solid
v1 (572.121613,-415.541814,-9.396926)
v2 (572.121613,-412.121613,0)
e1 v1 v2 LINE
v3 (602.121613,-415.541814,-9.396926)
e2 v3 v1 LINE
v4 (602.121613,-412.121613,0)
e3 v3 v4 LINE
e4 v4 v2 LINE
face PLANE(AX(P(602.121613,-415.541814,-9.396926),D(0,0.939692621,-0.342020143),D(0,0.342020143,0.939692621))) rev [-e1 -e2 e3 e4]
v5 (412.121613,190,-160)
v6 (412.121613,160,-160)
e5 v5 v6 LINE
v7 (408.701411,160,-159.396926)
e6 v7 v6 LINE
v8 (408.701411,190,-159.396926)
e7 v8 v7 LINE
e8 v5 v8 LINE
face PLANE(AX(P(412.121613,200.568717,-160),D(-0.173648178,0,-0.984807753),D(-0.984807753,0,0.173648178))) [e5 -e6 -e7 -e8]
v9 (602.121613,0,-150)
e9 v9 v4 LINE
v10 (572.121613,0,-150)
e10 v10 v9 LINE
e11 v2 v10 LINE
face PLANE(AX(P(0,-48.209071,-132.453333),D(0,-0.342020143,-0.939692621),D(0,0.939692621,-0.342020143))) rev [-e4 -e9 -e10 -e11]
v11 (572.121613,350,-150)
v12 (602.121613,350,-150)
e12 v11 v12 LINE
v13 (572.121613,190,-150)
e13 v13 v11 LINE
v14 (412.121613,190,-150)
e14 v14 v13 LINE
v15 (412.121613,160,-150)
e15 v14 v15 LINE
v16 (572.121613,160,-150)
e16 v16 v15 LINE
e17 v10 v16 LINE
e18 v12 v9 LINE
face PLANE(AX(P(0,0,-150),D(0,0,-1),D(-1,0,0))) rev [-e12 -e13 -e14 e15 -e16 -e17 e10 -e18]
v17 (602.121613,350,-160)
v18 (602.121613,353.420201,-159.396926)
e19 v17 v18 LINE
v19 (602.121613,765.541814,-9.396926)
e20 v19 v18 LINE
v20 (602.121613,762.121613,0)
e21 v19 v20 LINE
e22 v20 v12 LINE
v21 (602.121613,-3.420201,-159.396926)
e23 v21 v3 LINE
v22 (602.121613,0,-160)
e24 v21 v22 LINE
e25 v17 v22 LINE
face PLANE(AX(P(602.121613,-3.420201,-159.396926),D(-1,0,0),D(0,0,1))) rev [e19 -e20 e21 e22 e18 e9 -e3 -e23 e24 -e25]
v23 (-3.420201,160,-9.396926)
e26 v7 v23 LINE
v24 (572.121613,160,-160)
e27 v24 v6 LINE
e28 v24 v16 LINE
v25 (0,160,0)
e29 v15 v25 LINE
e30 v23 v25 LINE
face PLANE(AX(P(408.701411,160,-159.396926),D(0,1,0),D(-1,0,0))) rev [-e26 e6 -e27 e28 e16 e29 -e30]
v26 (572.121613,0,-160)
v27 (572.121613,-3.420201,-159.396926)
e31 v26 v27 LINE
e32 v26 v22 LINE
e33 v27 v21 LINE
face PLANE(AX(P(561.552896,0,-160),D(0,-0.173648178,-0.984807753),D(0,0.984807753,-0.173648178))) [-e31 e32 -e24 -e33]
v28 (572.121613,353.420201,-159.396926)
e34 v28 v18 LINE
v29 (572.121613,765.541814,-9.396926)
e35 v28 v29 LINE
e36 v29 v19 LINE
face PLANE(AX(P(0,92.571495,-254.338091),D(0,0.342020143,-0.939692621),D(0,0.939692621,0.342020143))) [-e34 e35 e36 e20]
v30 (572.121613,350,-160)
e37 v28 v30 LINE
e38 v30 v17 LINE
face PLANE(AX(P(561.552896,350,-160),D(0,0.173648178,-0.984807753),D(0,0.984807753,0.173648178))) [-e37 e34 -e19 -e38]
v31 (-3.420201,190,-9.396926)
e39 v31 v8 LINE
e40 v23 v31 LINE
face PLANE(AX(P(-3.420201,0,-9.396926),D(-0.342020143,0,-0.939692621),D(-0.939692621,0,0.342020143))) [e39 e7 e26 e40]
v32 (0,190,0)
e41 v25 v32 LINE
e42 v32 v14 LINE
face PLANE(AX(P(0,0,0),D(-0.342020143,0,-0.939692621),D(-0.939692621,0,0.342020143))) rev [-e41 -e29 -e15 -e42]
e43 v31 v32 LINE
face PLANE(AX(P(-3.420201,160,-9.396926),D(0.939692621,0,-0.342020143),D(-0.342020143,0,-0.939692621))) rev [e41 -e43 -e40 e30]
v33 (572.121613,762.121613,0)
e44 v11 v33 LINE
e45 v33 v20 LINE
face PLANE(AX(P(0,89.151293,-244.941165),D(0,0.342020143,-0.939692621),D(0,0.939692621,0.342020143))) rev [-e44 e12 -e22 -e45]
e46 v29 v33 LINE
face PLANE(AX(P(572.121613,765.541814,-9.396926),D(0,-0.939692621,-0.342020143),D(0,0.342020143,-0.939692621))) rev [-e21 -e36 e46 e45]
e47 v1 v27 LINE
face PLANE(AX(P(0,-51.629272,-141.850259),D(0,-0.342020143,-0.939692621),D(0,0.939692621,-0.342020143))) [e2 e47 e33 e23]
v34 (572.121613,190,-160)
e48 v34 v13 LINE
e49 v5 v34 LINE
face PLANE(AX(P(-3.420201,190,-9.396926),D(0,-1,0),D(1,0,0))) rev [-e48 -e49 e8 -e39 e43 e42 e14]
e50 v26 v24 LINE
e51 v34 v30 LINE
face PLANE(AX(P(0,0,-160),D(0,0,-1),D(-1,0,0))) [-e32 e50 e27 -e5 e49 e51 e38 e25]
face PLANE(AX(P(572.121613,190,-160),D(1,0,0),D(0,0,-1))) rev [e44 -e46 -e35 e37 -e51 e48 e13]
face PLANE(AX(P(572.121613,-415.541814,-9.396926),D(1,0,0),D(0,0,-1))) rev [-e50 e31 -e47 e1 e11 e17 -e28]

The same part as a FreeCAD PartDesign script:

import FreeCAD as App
import Part
import Sketcher
from FreeCAD import Vector
Q = App.Units.Quantity

doc = App.newDocument("Part")
params = doc.addObject("Spreadsheet::Sheet", "Params")
for row, (alias, value) in enumerate([
    ("sketch1_height", "150 mm"),
    ("pad1_length", "350 mm"),
    ("sketch2_width", "350 mm"),
    ("sketch2_height", "150 mm"),
    ("pad2_length", "350 mm"),
    ("sketch3_height", "150 mm"),
    ("pad3_length", "350 mm"),
    ("sketch4_height", "150 mm"),
    ("pad4_length", "350 mm"),
    ("sketch5_height", "30 mm"),
    ("pocket1_length", "10 mm"),
    ("sketch6_width", "160 mm"),
    ("sketch6_width2", "30 mm"),
    ("pocket2_length", "10 mm"),
    ("sketch7_width", "30 mm"),
    ("pocket3_length", "10 mm"),
    ("sketch8_width", "30 mm"),
    ("pocket4_length", "10 mm"),
    ("sketch9_height", "160 mm"),
    ("pocket5_length", "1000 mm"),
    ("sketch10_height", "160 mm"),
    ("pocket6_length", "1000 mm"),
    ("sketch11_width", "160 mm"),
    ("pocket7_length", "1000 mm"),
    ("sketch12_width", "160 mm"),
    ("pocket8_length", "1000 mm"),
    ("sketch13_width", "160 mm"),
    ("pocket9_length", "1000 mm"),
    ("sketch14_width", "160 mm"),
    ("pocket10_length", "1000 mm"),
    ("sketch15_width", "160 mm"),
    ("sketch15_height", "350 mm"),
    ("pocket11_length", "1000 mm"),
    ("sketch16_width", "160 mm"),
    ("pocket12_length", "1000 mm"),
    ("sketch17_width", "160 mm"),
    ("pocket13_length", "1000 mm"),
    ("sketch18_height", "140 mm"),
    ("pocket14_length", "1000 mm"),
    ("pocket15_length", "1000 mm"),
    ("sketch20_height", "30 mm"),
    ("pad5_length", "10 mm"),
    ("sketch21_width", "160 mm"),
    ("sketch21_width2", "30 mm"),
    ("pad6_length", "10 mm"),
    ("sketch22_width", "30 mm"),
    ("pad7_length", "10 mm"),
    ("sketch23_width", "30 mm"),
    ("pad8_length", "10 mm"),
    ("sketch24_height", "10 mm"),
    ("pad9_length", "30 mm"),
    ("sketch25_height", "10 mm"),
    ("pad10_length", "30 mm"),
    ("sketch26_height", "10 mm"),
    ("pad11_length", "30 mm"),
], start=1):
    params.set(f"A{row}", alias)
    params.set(f"B{row}", "=" + value)
    params.setAlias(f"B{row}", alias)

body = doc.addObject("PartDesign::Body", "Body")

sketch1 = body.newObject("Sketcher::SketchObject", "Sketch")
sketch1.AttachmentSupport = (doc.getObject("XZ_Plane"), [""])
sketch1.MapMode = "FlatFace"
sketch1.addGeometry([
    Part.LineSegment(Vector(0, 0, 0), Vector(412, 0, 0)),
    Part.LineSegment(Vector(412, 0, 0), Vector(412, -150, 0)),
    Part.LineSegment(Vector(412, -150, 0), Vector(0, 0, 0)),
], False)
sketch1.addConstraint([
    Sketcher.Constraint("Coincident", 0, 2, 1, 1),
    Sketcher.Constraint("Coincident", 1, 2, 2, 1),
    Sketcher.Constraint("Coincident", 2, 2, 0, 1),
    Sketcher.Constraint("Horizontal", 0),
    Sketcher.Constraint("Vertical", 1),
    Sketcher.Constraint("Coincident", 2, 2, -1, 1),
    Sketcher.Constraint("DistanceY", 1, 2, 1, 1, Q("150 mm")),
    Sketcher.Constraint("Angle", 2, Q("160 deg")),
])
sketch1.setExpression("Constraints[6]", "Params.sketch1_height")
pad1 = body.newObject("PartDesign::Pad", "Pad")
pad1.Profile = sketch1
pad1.setExpression("Length", "Params.pad1_length")
pad1.Reversed = True

sketch2 = body.newObject("Sketcher::SketchObject", "Sketch001")
sketch2.AttachmentSupport = (doc.getObject("YZ_Plane"), [""])
sketch2.MapMode = "FlatFace"
sketch2.AttachmentOffset = App.Placement(Vector(0, 0, 412.121613), App.Rotation())
sketch2.addGeometry([
    Part.LineSegment(Vector(350, 0, 0), Vector(0, 0, 0)),
    Part.LineSegment(Vector(0, 0, 0), Vector(0, -150, 0)),
    Part.LineSegment(Vector(0, -150, 0), Vector(350, -150, 0)),
    Part.LineSegment(Vector(350, -150, 0), Vector(350, 0, 0)),
], False)
sketch2.addConstraint([
    Sketcher.Constraint("Coincident", 0, 2, 1, 1),
    Sketcher.Constraint("Coincident", 1, 2, 2, 1),
    Sketcher.Constraint("Coincident", 2, 2, 3, 1),
    Sketcher.Constraint("Coincident", 3, 2, 0, 1),
    Sketcher.Constraint("Horizontal", 0),
    Sketcher.Constraint("Vertical", 1),
    Sketcher.Constraint("Horizontal", 2),
    Sketcher.Constraint("Vertical", 3),
    Sketcher.Constraint("Coincident", 0, 2, -1, 1),
    Sketcher.Constraint("DistanceX", 0, 2, 0, 1, Q("350 mm")),
    Sketcher.Constraint("DistanceY", 1, 2, 1, 1, Q("150 mm")),
])
sketch2.setExpression("Constraints[9]", "Params.sketch2_width")
sketch2.setExpression("Constraints[10]", "Params.sketch2_height")
pad2 = body.newObject("PartDesign::Pad", "Pad001")
pad2.Profile = sketch2
pad2.setExpression("Length", "Params.pad2_length")

sketch3 = body.newObject("Sketcher::SketchObject", "Sketch002")
sketch3.AttachmentSupport = (doc.getObject("YZ_Plane"), [""])
sketch3.MapMode = "FlatFace"
sketch3.AttachmentOffset = App.Placement(Vector(0, 0, 762.121613), App.Rotation())
sketch3.addGeometry([
    Part.LineSegment(Vector(350, -150, 0), Vector(762, 0, 0)),
    Part.LineSegment(Vector(762, 0, 0), Vector(350, 0, 0)),
    Part.LineSegment(Vector(350, 0, 0), Vector(350, -150, 0)),
], False)
sketch3.addConstraint([
    Sketcher.Constraint("Coincident", 0, 2, 1, 1),
    Sketcher.Constraint("Coincident", 1, 2, 2, 1),
    Sketcher.Constraint("Coincident", 2, 2, 0, 1),
    Sketcher.Constraint("Horizontal", 1),
    Sketcher.Constraint("Vertical", 2),
    Sketcher.Constraint("PointOnObject", 0, 2, -1),
    Sketcher.Constraint("DistanceY", 2, 2, 2, 1, Q("150 mm")),
    Sketcher.Constraint("Angle", 0, Q("20 deg")),
    Sketcher.Constraint("DistanceX", -1, 1, 1, 2, Q("350 mm")),
])
sketch3.setExpression("Constraints[6]", "Params.sketch3_height")
pad3 = body.newObject("PartDesign::Pad", "Pad002")
pad3.Profile = sketch3
pad3.setExpression("Length", "Params.pad3_length")
pad3.Reversed = True

sketch4 = body.newObject("Sketcher::SketchObject", "Sketch003")
sketch4.AttachmentSupport = (doc.getObject("YZ_Plane"), [""])
sketch4.MapMode = "FlatFace"
sketch4.AttachmentOffset = App.Placement(Vector(0, 0, 762.121613), App.Rotation())
sketch4.addGeometry([
    Part.LineSegment(Vector(0, 0, 0), Vector(-412, 0, 0)),
    Part.LineSegment(Vector(-412, 0, 0), Vector(0, -150, 0)),
    Part.LineSegment(Vector(0, -150, 0), Vector(0, 0, 0)),
], False)
sketch4.addConstraint([
    Sketcher.Constraint("Coincident", 0, 2, 1, 1),
    Sketcher.Constraint("Coincident", 1, 2, 2, 1),
    Sketcher.Constraint("Coincident", 2, 2, 0, 1),
    Sketcher.Constraint("Horizontal", 0),
    Sketcher.Constraint("Vertical", 2),
    Sketcher.Constraint("Coincident", 2, 2, -1, 1),
    Sketcher.Constraint("DistanceY", 2, 1, 2, 2, Q("150 mm")),
    Sketcher.Constraint("Angle", 1, Q("-20 deg")),
])
sketch4.setExpression("Constraints[6]", "Params.sketch4_height")
pad4 = body.newObject("PartDesign::Pad", "Pad003")
pad4.Profile = sketch4
pad4.setExpression("Length", "Params.pad4_length")
pad4.Reversed = True

sketch5 = body.newObject("Sketcher::SketchObject", "Sketch004")
sketch5.Placement = App.Placement(Vector(0, 0, 0), App.Rotation(Vector(-0.939692621, 0, 0.342020143), Vector(0, 1, 0), Vector(-0.342020143, 0, -0.939692621), "ZXY"))
sketch5.addGeometry([
    Part.LineSegment(Vector(-439, 190, 0), Vector(-439, 160, 0)),
    Part.LineSegment(Vector(-439, 160, 0), Vector(0, 160, 0)),
    Part.LineSegment(Vector(0, 160, 0), Vector(0, 190, 0)),
    Part.LineSegment(Vector(0, 190, 0), Vector(-439, 190, 0)),
], False)
sketch5.addConstraint([
    Sketcher.Constraint("Coincident", 0, 2, 1, 1),
    Sketcher.Constraint("Coincident", 1, 2, 2, 1),
    Sketcher.Constraint("Coincident", 2, 2, 3, 1),
    Sketcher.Constraint("Coincident", 3, 2, 0, 1),
    Sketcher.Constraint("Vertical", 0),
    Sketcher.Constraint("Horizontal", 1),
    Sketcher.Constraint("Vertical", 2),
    Sketcher.Constraint("Horizontal", 3),
    Sketcher.Constraint("PointOnObject", 1, 2, -2),
    Sketcher.Constraint("DistanceY", 0, 2, 0, 1, Q("30 mm")),
    Sketcher.Constraint("DistanceY", -1, 1, 0, 2, Q("160 mm")),
    Sketcher.Constraint("DistanceX", 1, 1, 1, 2, Q("438.57066 mm")),
])
sketch5.setExpression("Constraints[9]", "Params.sketch5_height")
pocket1 = body.newObject("PartDesign::Pocket", "Pocket")
pocket1.Profile = sketch5
pocket1.setExpression("Length", "Params.pocket1_length")

sketch6 = body.newObject("Sketcher::SketchObject", "Sketch005")
sketch6.AttachmentSupport = (doc.getObject("XY_Plane"), [""])
sketch6.MapMode = "FlatFace"
sketch6.AttachmentOffset = App.Placement(Vector(0, 0, -150), App.Rotation())
sketch6.addGeometry([
    Part.LineSegment(Vector(412, 190, 0), Vector(572, 190, 0)),
    Part.LineSegment(Vector(572, 190, 0), Vector(572, 350, 0)),
    Part.LineSegment(Vector(572, 350, 0), Vector(602, 350, 0)),
    Part.LineSegment(Vector(602, 350, 0), Vector(602, 0, 0)),
    Part.LineSegment(Vector(602, 0, 0), Vector(572, 0, 0)),
    Part.LineSegment(Vector(572, 0, 0), Vector(572, 160, 0)),
    Part.LineSegment(Vector(572, 160, 0), Vector(412, 160, 0)),
    Part.LineSegment(Vector(412, 160, 0), Vector(412, 190, 0)),
], False)
sketch6.addConstraint([
    Sketcher.Constraint("Coincident", 0, 2, 1, 1),
    Sketcher.Constraint("Coincident", 1, 2, 2, 1),
    Sketcher.Constraint("Coincident", 2, 2, 3, 1),
    Sketcher.Constraint("Coincident", 3, 2, 4, 1),
    Sketcher.Constraint("Coincident", 4, 2, 5, 1),
    Sketcher.Constraint("Coincident", 5, 2, 6, 1),
    Sketcher.Constraint("Coincident", 6, 2, 7, 1),
    Sketcher.Constraint("Coincident", 7, 2, 0, 1),
    Sketcher.Constraint("Horizontal", 0),
    Sketcher.Constraint("Vertical", 1),
    Sketcher.Constraint("Horizontal", 2),
    Sketcher.Constraint("Vertical", 3),
    Sketcher.Constraint("Horizontal", 4),
    Sketcher.Constraint("Vertical", 5),
    Sketcher.Constraint("Horizontal", 6),
    Sketcher.Constraint("Vertical", 7),
    Sketcher.Constraint("PointOnObject", 3, 2, -1),
    Sketcher.Constraint("Vertical", 1, 2, 4, 2),
    Sketcher.Constraint("Equal", 6, 1),
    Sketcher.Constraint("Equal", 1, 5),
    Sketcher.Constraint("Equal", 4, 7),
    Sketcher.Constraint("DistanceX", 0, 1, 0, 2, Q("160 mm")),
    Sketcher.Constraint("DistanceX", 2, 1, 2, 2, Q("30 mm")),
    Sketcher.Constraint("DistanceX", -1, 1, 0, 2, Q("572.121613 mm")),
])
sketch6.setExpression("Constraints[21]", "Params.sketch6_width")
sketch6.setExpression("Constraints[22]", "Params.sketch6_width2")
pocket2 = body.newObject("PartDesign::Pocket", "Pocket001")
pocket2.Profile = sketch6
pocket2.setExpression("Length", "Params.pocket2_length")
pocket2.Reversed = True

sketch7 = body.newObject("Sketcher::SketchObject", "Sketch006")
sketch7.Placement = App.Placement(Vector(0, -48.209071, -132.453333), App.Rotation(Vector(-1, 0, 0), Vector(0, 0.939692621, -0.342020143), Vector(0, -0.342020143, -0.939692621), "ZXY"))
sketch7.addGeometry([
    Part.LineSegment(Vector(-602, 51, 0), Vector(-602, -387, 0)),
    Part.LineSegment(Vector(-602, -387, 0), Vector(-572, -387, 0)),
    Part.LineSegment(Vector(-572, -387, 0), Vector(-572, 51, 0)),
    Part.LineSegment(Vector(-572, 51, 0), Vector(-602, 51, 0)),
], False)
sketch7.addConstraint([
    Sketcher.Constraint("Coincident", 0, 2, 1, 1),
    Sketcher.Constraint("Coincident", 1, 2, 2, 1),
    Sketcher.Constraint("Coincident", 2, 2, 3, 1),
    Sketcher.Constraint("Coincident", 3, 2, 0, 1),
    Sketcher.Constraint("Vertical", 0),
    Sketcher.Constraint("Horizontal", 1),
    Sketcher.Constraint("Vertical", 2),
    Sketcher.Constraint("Horizontal", 3),
    Sketcher.Constraint("DistanceX", 1, 1, 1, 2, Q("30 mm")),
    Sketcher.Constraint("DistanceY", 0, 2, 0, 1, Q("438.57066 mm")),
    Sketcher.Constraint("DistanceY", 0, 2, -1, 1, Q("387.267639 mm")),
    Sketcher.Constraint("DistanceX", 0, 2, -1, 1, Q("602.121613 mm")),
])
sketch7.setExpression("Constraints[8]", "Params.sketch7_width")
pocket3 = body.newObject("PartDesign::Pocket", "Pocket002")
pocket3.Profile = sketch7
pocket3.setExpression("Length", "Params.pocket3_length")

sketch8 = body.newObject("Sketcher::SketchObject", "Sketch007")
sketch8.Placement = App.Placement(Vector(0, 89.151293, -244.941165), App.Rotation(Vector(-1, 0, 0), Vector(0, 0.939692621, 0.342020143), Vector(0, 0.342020143, -0.939692621), "ZXY"))
sketch8.addGeometry([
    Part.LineSegment(Vector(-602, 716, 0), Vector(-602, 278, 0)),
    Part.LineSegment(Vector(-602, 278, 0), Vector(-572, 278, 0)),
    Part.LineSegment(Vector(-572, 278, 0), Vector(-572, 716, 0)),
    Part.LineSegment(Vector(-572, 716, 0), Vector(-602, 716, 0)),
], False)
sketch8.addConstraint([
    Sketcher.Constraint("Coincident", 0, 2, 1, 1),
    Sketcher.Constraint("Coincident", 1, 2, 2, 1),
    Sketcher.Constraint("Coincident", 2, 2, 3, 1),
    Sketcher.Constraint("Coincident", 3, 2, 0, 1),
    Sketcher.Constraint("Vertical", 0),
    Sketcher.Constraint("Horizontal", 1),
    Sketcher.Constraint("Vertical", 2),
    Sketcher.Constraint("Horizontal", 3),
    Sketcher.Constraint("DistanceX", 1, 1, 1, 2, Q("30 mm")),
    Sketcher.Constraint("DistanceY", 0, 2, 0, 1, Q("438.57066 mm")),
    Sketcher.Constraint("DistanceX", 0, 2, -1, 1, Q("602.121613 mm")),
    Sketcher.Constraint("DistanceY", -1, 1, 0, 2, Q("277.589396 mm")),
])
sketch8.setExpression("Constraints[8]", "Params.sketch8_width")
pocket4 = body.newObject("PartDesign::Pocket", "Pocket003")
pocket4.Profile = sketch8
pocket4.setExpression("Length", "Params.pocket4_length")

sketch9 = body.newObject("Sketcher::SketchObject", "Sketch008")
sketch9.Placement = App.Placement(Vector(0, 0, 0), App.Rotation(Vector(-0.939692621, 0, 0.342020143), Vector(0, 1, 0), Vector(-0.342020143, 0, -0.939692621), "ZXY"))
sketch9.addGeometry([
    Part.LineSegment(Vector(-439, 160, 0), Vector(-439, 0, 0)),
    Part.LineSegment(Vector(-439, 0, 0), Vector(0, 0, 0)),
    Part.LineSegment(Vector(0, 0, 0), Vector(0, 160, 0)),
    Part.LineSegment(Vector(0, 160, 0), Vector(-439, 160, 0)),
], False)
sketch9.addConstraint([
    Sketcher.Constraint("Coincident", 0, 2, 1, 1),
    Sketcher.Constraint("Coincident", 1, 2, 2, 1),
    Sketcher.Constraint("Coincident", 2, 2, 3, 1),
    Sketcher.Constraint("Coincident", 3, 2, 0, 1),
    Sketcher.Constraint("Vertical", 0),
    Sketcher.Constraint("Horizontal", 1),
    Sketcher.Constraint("Vertical", 2),
    Sketcher.Constraint("Horizontal", 3),
    Sketcher.Constraint("Coincident", 1, 2, -1, 1),
    Sketcher.Constraint("DistanceY", 0, 2, 0, 1, Q("160 mm")),
    Sketcher.Constraint("DistanceX", 1, 1, 1, 2, Q("438.57066 mm")),
])
sketch9.setExpression("Constraints[9]", "Params.sketch9_height")
pocket5 = body.newObject("PartDesign::Pocket", "Pocket004")
pocket5.Profile = sketch9
pocket5.setExpression("Length", "Params.pocket5_length")

sketch10 = body.newObject("Sketcher::SketchObject", "Sketch009")
sketch10.Placement = App.Placement(Vector(0, 0, 0), App.Rotation(Vector(-0.939692621, 0, 0.342020143), Vector(0, 1, 0), Vector(-0.342020143, 0, -0.939692621), "ZXY"))
sketch10.addGeometry([
    Part.LineSegment(Vector(-439, 350, 0), Vector(-439, 190, 0)),
    Part.LineSegment(Vector(-439, 190, 0), Vector(0, 190, 0)),
    Part.LineSegment(Vector(0, 190, 0), Vector(0, 350, 0)),
    Part.LineSegment(Vector(0, 350, 0), Vector(-439, 350, 0)),
], False)
sketch10.addConstraint([
    Sketcher.Constraint("Coincident", 0, 2, 1, 1),
    Sketcher.Constraint("Coincident", 1, 2, 2, 1),
    Sketcher.Constraint("Coincident", 2, 2, 3, 1),
    Sketcher.Constraint("Coincident", 3, 2, 0, 1),
    Sketcher.Constraint("Vertical", 0),
    Sketcher.Constraint("Horizontal", 1),
    Sketcher.Constraint("Vertical", 2),
    Sketcher.Constraint("Horizontal", 3),
    Sketcher.Constraint("PointOnObject", 1, 2, -2),
    Sketcher.Constraint("DistanceY", 0, 2, 0, 1, Q("160 mm")),
    Sketcher.Constraint("DistanceY", -1, 1, 0, 2, Q("190 mm")),
    Sketcher.Constraint("DistanceX", 1, 1, 1, 2, Q("438.57066 mm")),
])
sketch10.setExpression("Constraints[9]", "Params.sketch10_height")
pocket6 = body.newObject("PartDesign::Pocket", "Pocket005")
pocket6.Profile = sketch10
pocket6.setExpression("Length", "Params.pocket6_length")

sketch11 = body.newObject("Sketcher::SketchObject", "Sketch010")
sketch11.AttachmentSupport = (doc.getObject("XY_Plane"), [""])
sketch11.MapMode = "FlatFace"
sketch11.AttachmentOffset = App.Placement(Vector(0, 0, -150), App.Rotation())
sketch11.addGeometry([
    Part.LineSegment(Vector(572, 350, 0), Vector(572, 190, 0)),
    Part.LineSegment(Vector(572, 190, 0), Vector(412, 190, 0)),
    Part.LineSegment(Vector(412, 190, 0), Vector(412, 350, 0)),
    Part.LineSegment(Vector(412, 350, 0), Vector(572, 350, 0)),
], False)
sketch11.addConstraint([
    Sketcher.Constraint("Coincident", 0, 2, 1, 1),
    Sketcher.Constraint("Coincident", 1, 2, 2, 1),
    Sketcher.Constraint("Coincident", 2, 2, 3, 1),
    Sketcher.Constraint("Coincident", 3, 2, 0, 1),
    Sketcher.Constraint("Vertical", 0),
    Sketcher.Constraint("Horizontal", 1),
    Sketcher.Constraint("Vertical", 2),
    Sketcher.Constraint("Horizontal", 3),
    Sketcher.Constraint("Equal", 3, 0),
    Sketcher.Constraint("DistanceX", 1, 2, 1, 1, Q("160 mm")),
    Sketcher.Constraint("DistanceY", -1, 1, 0, 2, Q("190 mm")),
    Sketcher.Constraint("DistanceX", -1, 1, 0, 2, Q("572.121613 mm")),
])
sketch11.setExpression("Constraints[9]", "Params.sketch11_width")
pocket7 = body.newObject("PartDesign::Pocket", "Pocket006")
pocket7.Profile = sketch11
pocket7.setExpression("Length", "Params.pocket7_length")
pocket7.Reversed = True

sketch12 = body.newObject("Sketcher::SketchObject", "Sketch011")
sketch12.AttachmentSupport = (doc.getObject("XY_Plane"), [""])
sketch12.MapMode = "FlatFace"
sketch12.AttachmentOffset = App.Placement(Vector(0, 0, -150), App.Rotation())
sketch12.addGeometry([
    Part.LineSegment(Vector(572, 160, 0), Vector(572, 0, 0)),
    Part.LineSegment(Vector(572, 0, 0), Vector(412, 0, 0)),
    Part.LineSegment(Vector(412, 0, 0), Vector(412, 160, 0)),
    Part.LineSegment(Vector(412, 160, 0), Vector(572, 160, 0)),
], False)
sketch12.addConstraint([
    Sketcher.Constraint("Coincident", 0, 2, 1, 1),
    Sketcher.Constraint("Coincident", 1, 2, 2, 1),
    Sketcher.Constraint("Coincident", 2, 2, 3, 1),
    Sketcher.Constraint("Coincident", 3, 2, 0, 1),
    Sketcher.Constraint("Vertical", 0),
    Sketcher.Constraint("Horizontal", 1),
    Sketcher.Constraint("Vertical", 2),
    Sketcher.Constraint("Horizontal", 3),
    Sketcher.Constraint("PointOnObject", 0, 2, -1),
    Sketcher.Constraint("Equal", 3, 0),
    Sketcher.Constraint("DistanceX", 1, 2, 1, 1, Q("160 mm")),
    Sketcher.Constraint("DistanceX", -1, 1, 0, 2, Q("572.121613 mm")),
])
sketch12.setExpression("Constraints[10]", "Params.sketch12_width")
pocket8 = body.newObject("PartDesign::Pocket", "Pocket007")
pocket8.Profile = sketch12
pocket8.setExpression("Length", "Params.pocket8_length")
pocket8.Reversed = True

sketch13 = body.newObject("Sketcher::SketchObject", "Sketch012")
sketch13.Placement = App.Placement(Vector(0, -48.209071, -132.453333), App.Rotation(Vector(-1, 0, 0), Vector(0, 0.939692621, -0.342020143), Vector(0, -0.342020143, -0.939692621), "ZXY"))
sketch13.addGeometry([
    Part.LineSegment(Vector(-572, 51, 0), Vector(-572, -387, 0)),
    Part.LineSegment(Vector(-572, -387, 0), Vector(-412, -387, 0)),
    Part.LineSegment(Vector(-412, -387, 0), Vector(-412, 51, 0)),
    Part.LineSegment(Vector(-412, 51, 0), Vector(-572, 51, 0)),
], False)
sketch13.addConstraint([
    Sketcher.Constraint("Coincident", 0, 2, 1, 1),
    Sketcher.Constraint("Coincident", 1, 2, 2, 1),
    Sketcher.Constraint("Coincident", 2, 2, 3, 1),
    Sketcher.Constraint("Coincident", 3, 2, 0, 1),
    Sketcher.Constraint("Vertical", 0),
    Sketcher.Constraint("Horizontal", 1),
    Sketcher.Constraint("Vertical", 2),
    Sketcher.Constraint("Horizontal", 3),
    Sketcher.Constraint("DistanceX", 1, 1, 1, 2, Q("160 mm")),
    Sketcher.Constraint("DistanceY", 0, 2, 0, 1, Q("438.57066 mm")),
    Sketcher.Constraint("DistanceY", 0, 2, -1, 1, Q("387.267639 mm")),
    Sketcher.Constraint("DistanceX", 0, 2, -1, 1, Q("572.121613 mm")),
])
sketch13.setExpression("Constraints[8]", "Params.sketch13_width")
pocket9 = body.newObject("PartDesign::Pocket", "Pocket008")
pocket9.Profile = sketch13
pocket9.setExpression("Length", "Params.pocket9_length")

sketch14 = body.newObject("Sketcher::SketchObject", "Sketch013")
sketch14.Placement = App.Placement(Vector(0, -48.209071, -132.453333), App.Rotation(Vector(-1, 0, 0), Vector(0, 0.939692621, -0.342020143), Vector(0, -0.342020143, -0.939692621), "ZXY"))
sketch14.addGeometry([
    Part.LineSegment(Vector(-762, 51, 0), Vector(-762, -387, 0)),
    Part.LineSegment(Vector(-762, -387, 0), Vector(-602, -387, 0)),
    Part.LineSegment(Vector(-602, -387, 0), Vector(-602, 51, 0)),
    Part.LineSegment(Vector(-602, 51, 0), Vector(-762, 51, 0)),
], False)
sketch14.addConstraint([
    Sketcher.Constraint("Coincident", 0, 2, 1, 1),
    Sketcher.Constraint("Coincident", 1, 2, 2, 1),
    Sketcher.Constraint("Coincident", 2, 2, 3, 1),
    Sketcher.Constraint("Coincident", 3, 2, 0, 1),
    Sketcher.Constraint("Vertical", 0),
    Sketcher.Constraint("Horizontal", 1),
    Sketcher.Constraint("Vertical", 2),
    Sketcher.Constraint("Horizontal", 3),
    Sketcher.Constraint("DistanceX", 1, 1, 1, 2, Q("160 mm")),
    Sketcher.Constraint("DistanceY", 0, 2, 0, 1, Q("438.57066 mm")),
    Sketcher.Constraint("DistanceY", 0, 2, -1, 1, Q("387.267639 mm")),
    Sketcher.Constraint("DistanceX", 0, 2, -1, 1, Q("762.121613 mm")),
])
sketch14.setExpression("Constraints[8]", "Params.sketch14_width")
pocket10 = body.newObject("PartDesign::Pocket", "Pocket009")
pocket10.Profile = sketch14
pocket10.setExpression("Length", "Params.pocket10_length")

sketch15 = body.newObject("Sketcher::SketchObject", "Sketch014")
sketch15.AttachmentSupport = (doc.getObject("XY_Plane"), [""])
sketch15.MapMode = "FlatFace"
sketch15.AttachmentOffset = App.Placement(Vector(0, 0, -150), App.Rotation())
sketch15.addGeometry([
    Part.LineSegment(Vector(762, 350, 0), Vector(762, 0, 0)),
    Part.LineSegment(Vector(762, 0, 0), Vector(602, 0, 0)),
    Part.LineSegment(Vector(602, 0, 0), Vector(602, 350, 0)),
    Part.LineSegment(Vector(602, 350, 0), Vector(762, 350, 0)),
], False)
sketch15.addConstraint([
    Sketcher.Constraint("Coincident", 0, 2, 1, 1),
    Sketcher.Constraint("Coincident", 1, 2, 2, 1),
    Sketcher.Constraint("Coincident", 2, 2, 3, 1),
    Sketcher.Constraint("Coincident", 3, 2, 0, 1),
    Sketcher.Constraint("Vertical", 0),
    Sketcher.Constraint("Horizontal", 1),
    Sketcher.Constraint("Vertical", 2),
    Sketcher.Constraint("Horizontal", 3),
    Sketcher.Constraint("PointOnObject", 0, 2, -1),
    Sketcher.Constraint("DistanceX", 1, 2, 1, 1, Q("160 mm")),
    Sketcher.Constraint("DistanceY", 0, 2, 0, 1, Q("350 mm")),
    Sketcher.Constraint("DistanceX", -1, 1, 0, 2, Q("762.121613 mm")),
])
sketch15.setExpression("Constraints[9]", "Params.sketch15_width")
sketch15.setExpression("Constraints[10]", "Params.sketch15_height")
pocket11 = body.newObject("PartDesign::Pocket", "Pocket010")
pocket11.Profile = sketch15
pocket11.setExpression("Length", "Params.pocket11_length")
pocket11.Reversed = True

sketch16 = body.newObject("Sketcher::SketchObject", "Sketch015")
sketch16.Placement = App.Placement(Vector(0, 89.151293, -244.941165), App.Rotation(Vector(-1, 0, 0), Vector(0, 0.939692621, 0.342020143), Vector(0, 0.342020143, -0.939692621), "ZXY"))
sketch16.addGeometry([
    Part.LineSegment(Vector(-762, 716, 0), Vector(-762, 278, 0)),
    Part.LineSegment(Vector(-762, 278, 0), Vector(-602, 278, 0)),
    Part.LineSegment(Vector(-602, 278, 0), Vector(-602, 716, 0)),
    Part.LineSegment(Vector(-602, 716, 0), Vector(-762, 716, 0)),
], False)
sketch16.addConstraint([
    Sketcher.Constraint("Coincident", 0, 2, 1, 1),
    Sketcher.Constraint("Coincident", 1, 2, 2, 1),
    Sketcher.Constraint("Coincident", 2, 2, 3, 1),
    Sketcher.Constraint("Coincident", 3, 2, 0, 1),
    Sketcher.Constraint("Vertical", 0),
    Sketcher.Constraint("Horizontal", 1),
    Sketcher.Constraint("Vertical", 2),
    Sketcher.Constraint("Horizontal", 3),
    Sketcher.Constraint("DistanceX", 1, 1, 1, 2, Q("160 mm")),
    Sketcher.Constraint("DistanceY", 0, 2, 0, 1, Q("438.57066 mm")),
    Sketcher.Constraint("DistanceX", 0, 2, -1, 1, Q("762.121613 mm")),
    Sketcher.Constraint("DistanceY", -1, 1, 0, 2, Q("277.589396 mm")),
])
sketch16.setExpression("Constraints[8]", "Params.sketch16_width")
pocket12 = body.newObject("PartDesign::Pocket", "Pocket011")
pocket12.Profile = sketch16
pocket12.setExpression("Length", "Params.pocket12_length")

sketch17 = body.newObject("Sketcher::SketchObject", "Sketch016")
sketch17.Placement = App.Placement(Vector(0, 89.151293, -244.941165), App.Rotation(Vector(-1, 0, 0), Vector(0, 0.939692621, 0.342020143), Vector(0, 0.342020143, -0.939692621), "ZXY"))
sketch17.addGeometry([
    Part.LineSegment(Vector(-572, 716, 0), Vector(-572, 278, 0)),
    Part.LineSegment(Vector(-572, 278, 0), Vector(-412, 278, 0)),
    Part.LineSegment(Vector(-412, 278, 0), Vector(-412, 716, 0)),
    Part.LineSegment(Vector(-412, 716, 0), Vector(-572, 716, 0)),
], False)
sketch17.addConstraint([
    Sketcher.Constraint("Coincident", 0, 2, 1, 1),
    Sketcher.Constraint("Coincident", 1, 2, 2, 1),
    Sketcher.Constraint("Coincident", 2, 2, 3, 1),
    Sketcher.Constraint("Coincident", 3, 2, 0, 1),
    Sketcher.Constraint("Vertical", 0),
    Sketcher.Constraint("Horizontal", 1),
    Sketcher.Constraint("Vertical", 2),
    Sketcher.Constraint("Horizontal", 3),
    Sketcher.Constraint("DistanceX", 1, 1, 1, 2, Q("160 mm")),
    Sketcher.Constraint("DistanceY", 0, 2, 0, 1, Q("438.57066 mm")),
    Sketcher.Constraint("DistanceX", 0, 2, -1, 1, Q("572.121613 mm")),
    Sketcher.Constraint("DistanceY", -1, 1, 0, 2, Q("277.589396 mm")),
])
sketch17.setExpression("Constraints[8]", "Params.sketch17_width")
pocket13 = body.newObject("PartDesign::Pocket", "Pocket012")
pocket13.Profile = sketch17
pocket13.setExpression("Length", "Params.pocket13_length")

sketch18 = body.newObject("Sketcher::SketchObject", "Sketch017")
sketch18.AttachmentSupport = (doc.getObject("XZ_Plane"), [""])
sketch18.MapMode = "FlatFace"
sketch18.AttachmentOffset = App.Placement(Vector(0, 0, -160), App.Rotation())
sketch18.addGeometry([
    Part.LineSegment(Vector(572, 0, 0), Vector(29, 0, 0)),
    Part.LineSegment(Vector(29, 0, 0), Vector(414, -140, 0)),
    Part.LineSegment(Vector(414, -140, 0), Vector(572, -140, 0)),
    Part.LineSegment(Vector(572, -140, 0), Vector(572, 0, 0)),
], False)
sketch18.addConstraint([
    Sketcher.Constraint("Coincident", 0, 2, 1, 1),
    Sketcher.Constraint("Coincident", 1, 2, 2, 1),
    Sketcher.Constraint("Coincident", 2, 2, 3, 1),
    Sketcher.Constraint("Coincident", 3, 2, 0, 1),
    Sketcher.Constraint("Horizontal", 0),
    Sketcher.Constraint("Horizontal", 2),
    Sketcher.Constraint("Vertical", 3),
    Sketcher.Constraint("PointOnObject", 0, 2, -1),
    Sketcher.Constraint("DistanceY", 3, 1, 3, 2, Q("140 mm")),
    Sketcher.Constraint("Angle", 1, Q("-20 deg")),
    Sketcher.Constraint("DistanceX", 0, 2, 0, 1, Q("542.883569 mm")),
    Sketcher.Constraint("DistanceX", -1, 1, 0, 2, Q("29.238044 mm")),
])
sketch18.setExpression("Constraints[8]", "Params.sketch18_height")
pocket14 = body.newObject("PartDesign::Pocket", "Pocket013")
pocket14.Profile = sketch18
pocket14.setExpression("Length", "Params.pocket14_length")

sketch19 = body.newObject("Sketcher::SketchObject", "Sketch018")
sketch19.AttachmentSupport = (doc.getObject("YZ_Plane"), [""])
sketch19.MapMode = "FlatFace"
sketch19.AttachmentOffset = App.Placement(Vector(0, 0, 572.121613), App.Rotation())
sketch19.addGeometry([
    Part.LineSegment(Vector(348, -140, 0), Vector(2, -140, 0)),
    Part.LineSegment(Vector(2, -140, 0), Vector(-383, 0, 0)),
    Part.LineSegment(Vector(-383, 0, 0), Vector(733, 0, 0)),
    Part.LineSegment(Vector(733, 0, 0), Vector(348, -140, 0)),
], False)
sketch19.addConstraint([
    Sketcher.Constraint("Coincident", 0, 2, 1, 1),
    Sketcher.Constraint("Coincident", 1, 2, 2, 1),
    Sketcher.Constraint("Coincident", 2, 2, 3, 1),
    Sketcher.Constraint("Coincident", 3, 2, 0, 1),
    Sketcher.Constraint("Horizontal", 0),
    Sketcher.Constraint("Horizontal", 2),
    Sketcher.Constraint("PointOnObject", 1, 2, -1),
    Sketcher.Constraint("Equal", 1, 3),
    Sketcher.Constraint("Angle", 1, Q("160 deg")),
    Sketcher.Constraint("DistanceY", 0, 2, -1, 1, Q("140 mm")),
    Sketcher.Constraint("DistanceX", 0, 2, 0, 1, Q("346.47346 mm")),
    Sketcher.Constraint("DistanceX", -1, 1, 0, 2, Q("1.76327 mm")),
])
pocket15 = body.newObject("PartDesign::Pocket", "Pocket014")
pocket15.Profile = sketch19
pocket15.setExpression("Length", "Params.pocket15_length")
pocket15.Reversed = True
body2 = doc.addObject("PartDesign::Body", "Body001")

sketch20 = body2.newObject("Sketcher::SketchObject", "Sketch019")
sketch20.Placement = App.Placement(Vector(0, 0, 0), App.Rotation(Vector(-0.939692621, 0, 0.342020143), Vector(0, 1, 0), Vector(-0.342020143, 0, -0.939692621), "ZXY"))
sketch20.addGeometry([
    Part.LineSegment(Vector(-439, 190, 0), Vector(-439, 160, 0)),
    Part.LineSegment(Vector(-439, 160, 0), Vector(0, 160, 0)),
    Part.LineSegment(Vector(0, 160, 0), Vector(0, 190, 0)),
    Part.LineSegment(Vector(0, 190, 0), Vector(-439, 190, 0)),
], False)
sketch20.addConstraint([
    Sketcher.Constraint("Coincident", 0, 2, 1, 1),
    Sketcher.Constraint("Coincident", 1, 2, 2, 1),
    Sketcher.Constraint("Coincident", 2, 2, 3, 1),
    Sketcher.Constraint("Coincident", 3, 2, 0, 1),
    Sketcher.Constraint("Vertical", 0),
    Sketcher.Constraint("Horizontal", 1),
    Sketcher.Constraint("Vertical", 2),
    Sketcher.Constraint("Horizontal", 3),
    Sketcher.Constraint("PointOnObject", 1, 2, -2),
    Sketcher.Constraint("DistanceY", 0, 2, 0, 1, Q("30 mm")),
    Sketcher.Constraint("DistanceY", -1, 1, 0, 2, Q("160 mm")),
    Sketcher.Constraint("DistanceX", 1, 1, 1, 2, Q("438.57066 mm")),
])
sketch20.setExpression("Constraints[9]", "Params.sketch20_height")
pad5 = body2.newObject("PartDesign::Pad", "Pad004")
pad5.Profile = sketch20
pad5.setExpression("Length", "Params.pad5_length")
body3 = doc.addObject("PartDesign::Body", "Body002")

sketch21 = body3.newObject("Sketcher::SketchObject", "Sketch020")
sketch21.AttachmentSupport = (doc.getObject("XY_Plane002"), [""])
sketch21.MapMode = "FlatFace"
sketch21.AttachmentOffset = App.Placement(Vector(0, 0, -150), App.Rotation())
sketch21.addGeometry([
    Part.LineSegment(Vector(572, 0, 0), Vector(572, 160, 0)),
    Part.LineSegment(Vector(572, 160, 0), Vector(412, 160, 0)),
    Part.LineSegment(Vector(412, 160, 0), Vector(412, 190, 0)),
    Part.LineSegment(Vector(412, 190, 0), Vector(572, 190, 0)),
    Part.LineSegment(Vector(572, 190, 0), Vector(572, 350, 0)),
    Part.LineSegment(Vector(572, 350, 0), Vector(602, 350, 0)),
    Part.LineSegment(Vector(602, 350, 0), Vector(602, 0, 0)),
    Part.LineSegment(Vector(602, 0, 0), Vector(572, 0, 0)),
], False)
sketch21.addConstraint([
    Sketcher.Constraint("Coincident", 0, 2, 1, 1),
    Sketcher.Constraint("Coincident", 1, 2, 2, 1),
    Sketcher.Constraint("Coincident", 2, 2, 3, 1),
    Sketcher.Constraint("Coincident", 3, 2, 4, 1),
    Sketcher.Constraint("Coincident", 4, 2, 5, 1),
    Sketcher.Constraint("Coincident", 5, 2, 6, 1),
    Sketcher.Constraint("Coincident", 6, 2, 7, 1),
    Sketcher.Constraint("Coincident", 7, 2, 0, 1),
    Sketcher.Constraint("Vertical", 0),
    Sketcher.Constraint("Horizontal", 1),
    Sketcher.Constraint("Vertical", 2),
    Sketcher.Constraint("Horizontal", 3),
    Sketcher.Constraint("Vertical", 4),
    Sketcher.Constraint("Horizontal", 5),
    Sketcher.Constraint("Vertical", 6),
    Sketcher.Constraint("Horizontal", 7),
    Sketcher.Constraint("PointOnObject", 6, 2, -1),
    Sketcher.Constraint("Vertical", 0, 2, 3, 2),
    Sketcher.Constraint("Equal", 3, 0),
    Sketcher.Constraint("Equal", 7, 2),
    Sketcher.Constraint("Equal", 0, 4),
    Sketcher.Constraint("DistanceX", 1, 2, 1, 1, Q("160 mm")),
    Sketcher.Constraint("DistanceX", 5, 1, 5, 2, Q("30 mm")),
    Sketcher.Constraint("DistanceX", -1, 1, 0, 2, Q("572.121613 mm")),
])
sketch21.setExpression("Constraints[21]", "Params.sketch21_width")
sketch21.setExpression("Constraints[22]", "Params.sketch21_width2")
pad6 = body3.newObject("PartDesign::Pad", "Pad005")
pad6.Profile = sketch21
pad6.setExpression("Length", "Params.pad6_length")
pad6.Reversed = True
body4 = doc.addObject("PartDesign::Body", "Body003")

sketch22 = body4.newObject("Sketcher::SketchObject", "Sketch021")
sketch22.Placement = App.Placement(Vector(0, -48.209071, -132.453333), App.Rotation(Vector(-1, 0, 0), Vector(0, 0.939692621, -0.342020143), Vector(0, -0.342020143, -0.939692621), "ZXY"))
sketch22.addGeometry([
    Part.LineSegment(Vector(-602, 51, 0), Vector(-602, -387, 0)),
    Part.LineSegment(Vector(-602, -387, 0), Vector(-572, -387, 0)),
    Part.LineSegment(Vector(-572, -387, 0), Vector(-572, 51, 0)),
    Part.LineSegment(Vector(-572, 51, 0), Vector(-602, 51, 0)),
], False)
sketch22.addConstraint([
    Sketcher.Constraint("Coincident", 0, 2, 1, 1),
    Sketcher.Constraint("Coincident", 1, 2, 2, 1),
    Sketcher.Constraint("Coincident", 2, 2, 3, 1),
    Sketcher.Constraint("Coincident", 3, 2, 0, 1),
    Sketcher.Constraint("Vertical", 0),
    Sketcher.Constraint("Horizontal", 1),
    Sketcher.Constraint("Vertical", 2),
    Sketcher.Constraint("Horizontal", 3),
    Sketcher.Constraint("DistanceX", 1, 1, 1, 2, Q("30 mm")),
    Sketcher.Constraint("DistanceY", 0, 2, 0, 1, Q("438.57066 mm")),
    Sketcher.Constraint("DistanceY", 0, 2, -1, 1, Q("387.267639 mm")),
    Sketcher.Constraint("DistanceX", 0, 2, -1, 1, Q("602.121613 mm")),
])
sketch22.setExpression("Constraints[8]", "Params.sketch22_width")
pad7 = body4.newObject("PartDesign::Pad", "Pad006")
pad7.Profile = sketch22
pad7.setExpression("Length", "Params.pad7_length")
body5 = doc.addObject("PartDesign::Body", "Body004")

sketch23 = body5.newObject("Sketcher::SketchObject", "Sketch022")
sketch23.Placement = App.Placement(Vector(0, 89.151293, -244.941165), App.Rotation(Vector(-1, 0, 0), Vector(0, 0.939692621, 0.342020143), Vector(0, 0.342020143, -0.939692621), "ZXY"))
sketch23.addGeometry([
    Part.LineSegment(Vector(-602, 716, 0), Vector(-602, 278, 0)),
    Part.LineSegment(Vector(-602, 278, 0), Vector(-572, 278, 0)),
    Part.LineSegment(Vector(-572, 278, 0), Vector(-572, 716, 0)),
    Part.LineSegment(Vector(-572, 716, 0), Vector(-602, 716, 0)),
], False)
sketch23.addConstraint([
    Sketcher.Constraint("Coincident", 0, 2, 1, 1),
    Sketcher.Constraint("Coincident", 1, 2, 2, 1),
    Sketcher.Constraint("Coincident", 2, 2, 3, 1),
    Sketcher.Constraint("Coincident", 3, 2, 0, 1),
    Sketcher.Constraint("Vertical", 0),
    Sketcher.Constraint("Horizontal", 1),
    Sketcher.Constraint("Vertical", 2),
    Sketcher.Constraint("Horizontal", 3),
    Sketcher.Constraint("DistanceX", 1, 1, 1, 2, Q("30 mm")),
    Sketcher.Constraint("DistanceY", 0, 2, 0, 1, Q("438.57066 mm")),
    Sketcher.Constraint("DistanceX", 0, 2, -1, 1, Q("602.121613 mm")),
    Sketcher.Constraint("DistanceY", -1, 1, 0, 2, Q("277.589396 mm")),
])
sketch23.setExpression("Constraints[8]", "Params.sketch23_width")
pad8 = body5.newObject("PartDesign::Pad", "Pad007")
pad8.Profile = sketch23
pad8.setExpression("Length", "Params.pad8_length")
body3.AllowCompound = True
doc.recompute()

boolean = body3.newObject("PartDesign::Boolean", "Boolean")
boolean.Type = "Fuse"
boolean.addObjects([body5])

sketch24 = body3.newObject("Sketcher::SketchObject", "Sketch023")
sketch24.AttachmentSupport = (doc.getObject("YZ_Plane002"), [""])
sketch24.MapMode = "FlatFace"
sketch24.AttachmentOffset = App.Placement(Vector(0, 0, 602.121613), App.Rotation())
sketch24.addGeometry([
    Part.LineSegment(Vector(350, -160, 0), Vector(353.4, -159.4, 0)),
    Part.LineSegment(Vector(353.4, -159.4, 0), Vector(350, -150, 0)),
    Part.LineSegment(Vector(350, -150, 0), Vector(350, -160, 0)),
], False)
sketch24.addConstraint([
    Sketcher.Constraint("Coincident", 0, 2, 1, 1),
    Sketcher.Constraint("Coincident", 1, 2, 2, 1),
    Sketcher.Constraint("Coincident", 2, 2, 0, 1),
    Sketcher.Constraint("Vertical", 2),
    Sketcher.Constraint("DistanceY", 2, 2, 2, 1, Q("10 mm")),
    Sketcher.Constraint("Angle", 0, Q("10 deg")),
    Sketcher.Constraint("Angle", 1, Q("110 deg")),
    Sketcher.Constraint("DistanceX", -1, 1, 1, 2, Q("350 mm")),
    Sketcher.Constraint("DistanceY", 1, 2, -1, 1, Q("150 mm")),
])
sketch24.setExpression("Constraints[4]", "Params.sketch24_height")
pad9 = body3.newObject("PartDesign::Pad", "Pad008")
pad9.Profile = sketch24
pad9.setExpression("Length", "Params.pad9_length")
pad9.Reversed = True
body4.AllowCompound = True
doc.recompute()

boolean2 = body4.newObject("PartDesign::Boolean", "Boolean001")
boolean2.Type = "Fuse"
boolean2.addObjects([body3])

sketch25 = body4.newObject("Sketcher::SketchObject", "Sketch024")
sketch25.AttachmentSupport = (doc.getObject("YZ_Plane003"), [""])
sketch25.MapMode = "FlatFace"
sketch25.AttachmentOffset = App.Placement(Vector(0, 0, 602.121613), App.Rotation())
sketch25.addGeometry([
    Part.LineSegment(Vector(0, -150, 0), Vector(-3.4, -159.4, 0)),
    Part.LineSegment(Vector(-3.4, -159.4, 0), Vector(0, -160, 0)),
    Part.LineSegment(Vector(0, -160, 0), Vector(0, -150, 0)),
], False)
sketch25.addConstraint([
    Sketcher.Constraint("Coincident", 0, 2, 1, 1),
    Sketcher.Constraint("Coincident", 1, 2, 2, 1),
    Sketcher.Constraint("Coincident", 2, 2, 0, 1),
    Sketcher.Constraint("Vertical", 2),
    Sketcher.Constraint("PointOnObject", 1, 2, -2),
    Sketcher.Constraint("DistanceY", 2, 1, 2, 2, Q("10 mm")),
    Sketcher.Constraint("Angle", 0, Q("-110 deg")),
    Sketcher.Constraint("Angle", 1, Q("-10 deg")),
    Sketcher.Constraint("DistanceY", 1, 2, -1, 1, Q("160 mm")),
])
sketch25.setExpression("Constraints[5]", "Params.sketch25_height")
pad10 = body4.newObject("PartDesign::Pad", "Pad009")
pad10.Profile = sketch25
pad10.setExpression("Length", "Params.pad10_length")
pad10.Reversed = True
body2.AllowCompound = True
doc.recompute()

boolean3 = body2.newObject("PartDesign::Boolean", "Boolean002")
boolean3.Type = "Fuse"
boolean3.addObjects([body4])

sketch26 = body2.newObject("Sketcher::SketchObject", "Sketch025")
sketch26.AttachmentSupport = (doc.getObject("XZ_Plane001"), [""])
sketch26.MapMode = "FlatFace"
sketch26.AttachmentOffset = App.Placement(Vector(0, 0, -160), App.Rotation())
sketch26.addGeometry([
    Part.LineSegment(Vector(412.1, -150, 0), Vector(408.7, -159.4, 0)),
    Part.LineSegment(Vector(408.7, -159.4, 0), Vector(412.1, -160, 0)),
    Part.LineSegment(Vector(412.1, -160, 0), Vector(412.1, -150, 0)),
], False)
sketch26.addConstraint([
    Sketcher.Constraint("Coincident", 0, 2, 1, 1),
    Sketcher.Constraint("Coincident", 1, 2, 2, 1),
    Sketcher.Constraint("Coincident", 2, 2, 0, 1),
    Sketcher.Constraint("Vertical", 2),
    Sketcher.Constraint("DistanceY", 2, 1, 2, 2, Q("10 mm")),
    Sketcher.Constraint("Angle", 0, Q("-110 deg")),
    Sketcher.Constraint("Angle", 1, Q("-10 deg")),
    Sketcher.Constraint("DistanceY", 1, 2, -1, 1, Q("160 mm")),
    Sketcher.Constraint("DistanceX", -1, 1, 0, 2, Q("408.701411 mm")),
])
sketch26.setExpression("Constraints[4]", "Params.sketch26_height")
pad11 = body2.newObject("PartDesign::Pad", "Pad010")
pad11.Profile = sketch26
pad11.setExpression("Length", "Params.pad11_length")
pad11.Reversed = True

doc.recompute()
